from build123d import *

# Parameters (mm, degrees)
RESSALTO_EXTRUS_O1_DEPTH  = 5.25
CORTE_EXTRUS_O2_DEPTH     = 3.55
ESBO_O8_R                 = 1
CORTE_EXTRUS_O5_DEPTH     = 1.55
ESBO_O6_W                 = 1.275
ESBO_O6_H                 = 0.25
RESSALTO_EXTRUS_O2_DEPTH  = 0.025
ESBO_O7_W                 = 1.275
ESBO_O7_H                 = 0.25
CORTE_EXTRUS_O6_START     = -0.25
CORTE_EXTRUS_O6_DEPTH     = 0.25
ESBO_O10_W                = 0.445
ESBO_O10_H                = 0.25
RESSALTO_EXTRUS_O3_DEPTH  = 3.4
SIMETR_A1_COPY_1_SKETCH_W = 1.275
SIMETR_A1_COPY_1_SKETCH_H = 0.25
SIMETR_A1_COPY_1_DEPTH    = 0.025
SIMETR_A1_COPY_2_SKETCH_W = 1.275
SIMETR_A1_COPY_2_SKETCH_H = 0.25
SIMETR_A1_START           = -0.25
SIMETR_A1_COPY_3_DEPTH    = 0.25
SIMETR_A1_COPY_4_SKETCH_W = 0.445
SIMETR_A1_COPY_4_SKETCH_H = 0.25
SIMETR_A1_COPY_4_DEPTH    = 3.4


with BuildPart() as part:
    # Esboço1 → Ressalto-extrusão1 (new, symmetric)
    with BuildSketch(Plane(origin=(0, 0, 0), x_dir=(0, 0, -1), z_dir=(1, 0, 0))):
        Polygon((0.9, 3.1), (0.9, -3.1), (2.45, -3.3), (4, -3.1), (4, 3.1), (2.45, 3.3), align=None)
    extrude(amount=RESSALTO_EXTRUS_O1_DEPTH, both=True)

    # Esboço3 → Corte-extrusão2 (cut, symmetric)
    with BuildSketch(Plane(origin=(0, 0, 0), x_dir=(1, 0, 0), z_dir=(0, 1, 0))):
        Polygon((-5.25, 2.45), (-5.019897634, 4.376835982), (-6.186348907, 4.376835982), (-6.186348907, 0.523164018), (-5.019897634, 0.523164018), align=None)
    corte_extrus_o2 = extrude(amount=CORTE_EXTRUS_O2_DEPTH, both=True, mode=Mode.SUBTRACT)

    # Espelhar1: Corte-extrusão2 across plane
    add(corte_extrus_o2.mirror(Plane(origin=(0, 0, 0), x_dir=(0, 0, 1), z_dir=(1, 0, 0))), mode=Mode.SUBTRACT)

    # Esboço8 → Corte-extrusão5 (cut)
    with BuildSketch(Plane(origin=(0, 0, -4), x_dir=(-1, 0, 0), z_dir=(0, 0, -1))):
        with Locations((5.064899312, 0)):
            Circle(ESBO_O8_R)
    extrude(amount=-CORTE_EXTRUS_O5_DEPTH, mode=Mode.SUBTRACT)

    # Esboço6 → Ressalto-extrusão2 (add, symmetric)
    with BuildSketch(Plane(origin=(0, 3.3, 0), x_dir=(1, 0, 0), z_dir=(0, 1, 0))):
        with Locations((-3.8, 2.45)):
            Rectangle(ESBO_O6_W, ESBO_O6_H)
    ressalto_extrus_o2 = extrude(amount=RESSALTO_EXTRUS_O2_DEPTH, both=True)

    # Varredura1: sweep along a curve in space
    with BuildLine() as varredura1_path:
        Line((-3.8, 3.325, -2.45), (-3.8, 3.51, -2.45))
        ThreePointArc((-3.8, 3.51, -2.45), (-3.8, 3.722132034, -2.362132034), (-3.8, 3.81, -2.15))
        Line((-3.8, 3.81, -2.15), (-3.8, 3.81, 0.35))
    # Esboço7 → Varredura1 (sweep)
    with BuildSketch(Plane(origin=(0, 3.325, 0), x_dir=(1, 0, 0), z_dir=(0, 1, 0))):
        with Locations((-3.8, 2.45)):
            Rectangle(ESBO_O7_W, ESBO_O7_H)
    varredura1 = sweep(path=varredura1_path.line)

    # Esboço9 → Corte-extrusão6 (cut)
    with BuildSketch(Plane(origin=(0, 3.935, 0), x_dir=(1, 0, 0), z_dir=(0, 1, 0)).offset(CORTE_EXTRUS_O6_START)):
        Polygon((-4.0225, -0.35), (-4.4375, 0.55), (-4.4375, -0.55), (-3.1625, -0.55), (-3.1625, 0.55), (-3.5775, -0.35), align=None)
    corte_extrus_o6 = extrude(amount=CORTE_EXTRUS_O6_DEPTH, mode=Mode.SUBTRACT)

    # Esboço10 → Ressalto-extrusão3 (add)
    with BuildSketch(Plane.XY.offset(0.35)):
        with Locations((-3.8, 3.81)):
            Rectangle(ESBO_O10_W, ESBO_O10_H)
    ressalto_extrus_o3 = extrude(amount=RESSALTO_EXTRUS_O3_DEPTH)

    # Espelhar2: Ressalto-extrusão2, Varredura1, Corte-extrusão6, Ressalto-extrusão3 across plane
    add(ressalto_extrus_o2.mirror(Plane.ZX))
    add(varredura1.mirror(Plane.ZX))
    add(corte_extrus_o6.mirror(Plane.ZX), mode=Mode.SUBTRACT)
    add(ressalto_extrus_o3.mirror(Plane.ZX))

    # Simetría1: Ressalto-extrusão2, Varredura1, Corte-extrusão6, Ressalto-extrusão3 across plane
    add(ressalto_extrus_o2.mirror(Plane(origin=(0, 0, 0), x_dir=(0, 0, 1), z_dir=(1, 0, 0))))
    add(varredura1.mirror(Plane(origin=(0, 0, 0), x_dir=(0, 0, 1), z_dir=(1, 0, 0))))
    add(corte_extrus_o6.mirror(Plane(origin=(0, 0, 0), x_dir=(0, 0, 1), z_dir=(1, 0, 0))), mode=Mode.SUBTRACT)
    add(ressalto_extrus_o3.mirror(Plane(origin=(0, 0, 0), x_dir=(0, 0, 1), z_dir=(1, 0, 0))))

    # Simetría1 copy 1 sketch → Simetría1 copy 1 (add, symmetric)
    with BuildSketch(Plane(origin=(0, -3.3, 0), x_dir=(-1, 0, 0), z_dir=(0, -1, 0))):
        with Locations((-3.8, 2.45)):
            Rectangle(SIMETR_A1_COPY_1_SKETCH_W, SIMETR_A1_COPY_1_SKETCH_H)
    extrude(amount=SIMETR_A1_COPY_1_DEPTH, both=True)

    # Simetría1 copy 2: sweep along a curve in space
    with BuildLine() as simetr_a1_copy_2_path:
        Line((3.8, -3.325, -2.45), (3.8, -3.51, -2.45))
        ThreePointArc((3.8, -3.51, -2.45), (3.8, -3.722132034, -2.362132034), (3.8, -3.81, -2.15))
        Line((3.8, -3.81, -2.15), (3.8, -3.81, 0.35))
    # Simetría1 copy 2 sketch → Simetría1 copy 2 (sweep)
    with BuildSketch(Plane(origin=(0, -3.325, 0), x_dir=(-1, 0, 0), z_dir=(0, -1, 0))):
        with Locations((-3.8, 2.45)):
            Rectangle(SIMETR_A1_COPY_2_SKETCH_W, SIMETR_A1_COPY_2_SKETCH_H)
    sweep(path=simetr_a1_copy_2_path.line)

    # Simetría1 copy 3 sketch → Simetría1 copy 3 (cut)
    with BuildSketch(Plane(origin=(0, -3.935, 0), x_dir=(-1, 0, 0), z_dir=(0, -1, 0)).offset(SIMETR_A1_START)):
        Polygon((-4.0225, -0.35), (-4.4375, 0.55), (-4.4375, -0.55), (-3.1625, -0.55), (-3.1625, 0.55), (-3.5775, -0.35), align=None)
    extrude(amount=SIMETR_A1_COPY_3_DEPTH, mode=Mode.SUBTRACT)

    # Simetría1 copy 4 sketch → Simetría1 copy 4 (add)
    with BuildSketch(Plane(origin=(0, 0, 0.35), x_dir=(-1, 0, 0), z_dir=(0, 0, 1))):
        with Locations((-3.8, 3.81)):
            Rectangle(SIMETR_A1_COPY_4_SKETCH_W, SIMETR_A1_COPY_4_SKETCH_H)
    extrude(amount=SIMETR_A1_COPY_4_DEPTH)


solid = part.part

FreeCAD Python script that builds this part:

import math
import FreeCAD as App
import Part
import Sketcher
from FreeCAD import Vector
Q = App.Units.Quantity


def add_polygon(sketch, points):
    """Adds a closed chain of lines whose ends are joined by coincident constraints."""
    first, n = sketch.GeometryCount, len(points)
    for a, b in zip(points, points[1:] + points[:1]):
        sketch.addGeometry(Part.LineSegment(App.Vector(*a, 0), App.Vector(*b, 0)), False)
    for i in range(n):
        sketch.addConstraint(Sketcher.Constraint("Coincident", first + i, 2, first + (i + 1) % n, 1))

doc = App.newDocument("Part")
params = doc.addObject("Spreadsheet::Sheet", "Params")
for row, (alias, value) in enumerate([
    ("sketch1_width", "6.2 mm"),
    ("pad1_length", "10.5 mm"),
    ("pocket1_length", "7.1 mm"),
    ("sketch3_diameter", "2 mm"),
    ("pocket2_length", "1.55 mm"),
    ("sketch4_height", "0.25 mm"),
    ("pad2_length", "0.05 mm"),
    ("sketch5_height", "0.25 mm"),
    ("sketch6_radius", "0.3 mm"),
    ("sketch6_height", "2.5 mm"),
    ("sketch7_height", "1.1 mm"),
    ("pocket3_length", "0.25 mm"),
    ("sketch8_height", "0.25 mm"),
    ("pad3_length", "3.4 mm"),
    ("sketch9_height", "0.25 mm"),
    ("pad4_length", "0.05 mm"),
    ("sketch10_height", "0.25 mm"),
    ("sketch11_radius", "0.3 mm"),
    ("sketch11_height", "2.5 mm"),
    ("sketch12_height", "1.1 mm"),
    ("pocket4_length", "0.25 mm"),
    ("sketch13_height", "0.25 mm"),
    ("pad5_length", "3.4 mm"),
], start=1):
    params.set(f"A{row}", alias)
    params.set(f"B{row}", "=" + value)
    params.setAlias(f"B{row}", alias)

body = doc.addObject("PartDesign::Body", "Body")

# Sketch on YZ plane
sketch1 = doc.addObject("Sketcher::SketchObject", "Sketch")
body.addObject(sketch1)
sketch1.AttachmentSupport = (doc.YZ_Plane, [""])
sketch1.MapMode = "FlatFace"
add_polygon(sketch1, [(3.1, -0.9), (-3.1, -0.9), (-3.3, -2.5), (-3.1, -4), (3.1, -4), (3.3, -2.5)])  # lines 0-5
sketch1.addConstraint([
    Sketcher.Constraint("Horizontal", 0),
    Sketcher.Constraint("Horizontal", 3),
    Sketcher.Constraint("Symmetric", 1, 2, 4, 2, -2),
    Sketcher.Constraint("Parallel", 1, 4),
    Sketcher.Constraint("Parallel", 2, 5),
    Sketcher.Constraint("Vertical", 0, 2, 2, 2),
    Sketcher.Constraint("Vertical", 3, 2, 5, 2),
    Sketcher.Constraint("DistanceX", 0, 2, 0, 1, Q("6.2 mm")),
    Sketcher.Constraint("DistanceY", 2, 2, -1, 1, Q("4 mm")),
    Sketcher.Constraint("DistanceY", 0, 2, -1, 1, Q("0.9 mm")),
    Sketcher.Constraint("DistanceX", 1, 2, -1, 1, Q("3.3 mm")),
])
sketch1.setExpression("Constraints[13]", "Params.sketch1_width")
pad1 = doc.addObject("PartDesign::Pad", "Pad")
body.addObject(pad1)
pad1.Profile = sketch1
pad1.setExpression("Length", "Params.pad1_length")
pad1.Midplane = True

# Sketch on XZ plane
sketch2 = doc.addObject("Sketcher::SketchObject", "Sketch001")
body.addObject(sketch2)
sketch2.AttachmentSupport = (doc.XZ_Plane, [""])
sketch2.MapMode = "FlatFace"
add_polygon(sketch2, [(-5.2, -2.5), (-5, -4.4), (-6.2, -4.4), (-6.2, -0.5), (-5, -0.5)])  # lines 0-4
sketch2.addConstraint([
    Sketcher.Constraint("Horizontal", 1),
    Sketcher.Constraint("Vertical", 2),
    Sketcher.Constraint("Horizontal", 3),
    Sketcher.Constraint("Vertical", 0, 2, 3, 2),
    Sketcher.Constraint("Equal", 0, 4),
    Sketcher.Constraint("Angle", 0, Q("-83.19 deg")),
    Sketcher.Constraint("DistanceX", 4, 2, -1, 1, Q("5.25 mm")),
    Sketcher.Constraint("DistanceY", 4, 2, -1, 1, Q("2.45 mm")),
    Sketcher.Constraint("DistanceX", 1, 2, 1, 1, Q("1.166451 mm")),
    Sketcher.Constraint("DistanceY", 2, 1, 2, 2, Q("3.853672 mm")),
])
pocket1 = doc.addObject("PartDesign::Pocket", "Pocket")
body.addObject(pocket1)
pocket1.Profile = sketch2
pocket1.setExpression("Length", "Params.pocket1_length")
pocket1.Midplane = True
doc.recompute()

mirrored = doc.addObject("PartDesign::Mirrored", "Mirrored")
body.addObject(mirrored)
mirrored.Originals = [pocket1]
mirrored.MirrorPlane = (doc.YZ_Plane, [""])
body.Tip = mirrored

# Sketch on XY plane
sketch3 = doc.addObject("Sketcher::SketchObject", "Sketch002")
body.addObject(sketch3)
sketch3.AttachmentSupport = (doc.XY_Plane, [""])
sketch3.MapMode = "FlatFace"
sketch3.AttachmentOffset = App.Placement(Vector(0, 0, -4), App.Rotation())
sketch3.addGeometry(Part.Circle(Vector(-5.1, 0, 0), Vector(0, 0, 1), 1), False)
sketch3.addConstraint([
    Sketcher.Constraint("PointOnObject", 0, 3, -1),
    Sketcher.Constraint("Diameter", 0, Q("2 mm")),
    Sketcher.Constraint("DistanceX", 0, 3, -1, 1, Q("5.064899 mm")),
])
sketch3.setExpression("Constraints[1]", "Params.sketch3_diameter")
pocket2 = doc.addObject("PartDesign::Pocket", "Pocket001")
body.addObject(pocket2)
pocket2.Profile = sketch3
pocket2.setExpression("Length", "Params.pocket2_length")
pocket2.Reversed = True

# Sketch on XZ plane
sketch4 = doc.addObject("Sketcher::SketchObject", "Sketch003")
body.addObject(sketch4)
sketch4.AttachmentSupport = (doc.XZ_Plane, [""])
sketch4.MapMode = "FlatFace"
sketch4.AttachmentOffset = App.Placement(Vector(0, 0, -3.3), App.Rotation())
add_polygon(sketch4, [(-4.44, -2.58), (-4.44, -2.33), (-3.16, -2.33), (-3.16, -2.58)])  # lines 0-3
sketch4.addConstraint([
    Sketcher.Constraint("Vertical", 0),
    Sketcher.Constraint("Horizontal", 1),
    Sketcher.Constraint("Vertical", 2),
    Sketcher.Constraint("Horizontal", 3),
    Sketcher.Constraint("DistanceY", 0, 1, 0, 2, Q("0.25 mm")),
    Sketcher.Constraint("DistanceX", 1, 1, 1, 2, Q("1.275 mm")),
    Sketcher.Constraint("DistanceY", 0, 2, -1, 1, Q("2.325 mm")),
    Sketcher.Constraint("DistanceX", 0, 2, -1, 1, Q("4.4375 mm")),
])
sketch4.setExpression("Constraints[8]", "Params.sketch4_height")
pad2 = doc.addObject("PartDesign::Pad", "Pad001")
body.addObject(pad2)
pad2.Profile = sketch4
pad2.setExpression("Length", "Params.pad2_length")
pad2.Midplane = True

# Sketch on XZ plane
sketch5 = doc.addObject("Sketcher::SketchObject", "Sketch004")
body.addObject(sketch5)
sketch5.AttachmentSupport = (doc.XZ_Plane, [""])
sketch5.MapMode = "FlatFace"
sketch5.AttachmentOffset = App.Placement(Vector(0, 0, -3.325), App.Rotation())
add_polygon(sketch5, [(-4.44, -2.58), (-4.44, -2.33), (-3.16, -2.33), (-3.16, -2.58)])  # lines 0-3
sketch5.addConstraint([
    Sketcher.Constraint("Vertical", 0),
    Sketcher.Constraint("Horizontal", 1),
    Sketcher.Constraint("Vertical", 2),
    Sketcher.Constraint("Horizontal", 3),
    Sketcher.Constraint("DistanceY", 0, 1, 0, 2, Q("0.25 mm")),
    Sketcher.Constraint("DistanceX", 1, 1, 1, 2, Q("1.275 mm")),
    Sketcher.Constraint("DistanceY", 0, 2, -1, 1, Q("2.325 mm")),
    Sketcher.Constraint("DistanceX", 0, 2, -1, 1, Q("4.4375 mm")),
])
sketch5.setExpression("Constraints[8]", "Params.sketch5_height")

# Sketch on YZ plane
sketch6 = doc.addObject("Sketcher::SketchObject", "Sketch005")
body.addObject(sketch6)
sketch6.AttachmentSupport = (doc.YZ_Plane, [""])
sketch6.MapMode = "FlatFace"
sketch6.AttachmentOffset = App.Placement(Vector(0, 0, -3.8), App.Rotation())
sketch6.addGeometry([
    Part.LineSegment(Vector(3.33, -2.45, 0), Vector(3.51, -2.45, 0)),
    Part.ArcOfCircle(Part.Circle(Vector(3.51, -2.15, 0), Vector(0, 0, 1), 0.3), math.radians(-90), math.radians(0)),
    Part.LineSegment(Vector(3.81, -2.15, 0), Vector(3.81, 0.35, 0)),
], False)
sketch6.addConstraint([
    Sketcher.Constraint("Tangent", 0, 2, 1, 1),
    Sketcher.Constraint("Tangent", 1, 2, 2, 1),
    Sketcher.Constraint("Horizontal", 0),
    Sketcher.Constraint("Vertical", 2),
    Sketcher.Constraint("Radius", 1, Q("0.3 mm")),
    Sketcher.Constraint("DistanceY", 2, 1, 2, 2, Q("2.5 mm")),
    Sketcher.Constraint("DistanceX", 0, 1, 0, 2, Q("0.185 mm")),
    Sketcher.Constraint("DistanceX", -1, 1, 1, 3, Q("3.51 mm")),
    Sketcher.Constraint("DistanceY", 1, 3, -1, 1, Q("2.15 mm")),
])
sketch6.setExpression("Constraints[4]", "Params.sketch6_radius")
sketch6.setExpression("Constraints[5]", "Params.sketch6_height")
doc.recompute()

additivepipe = doc.addObject("PartDesign::AdditivePipe", "AdditivePipe")
body.addObject(additivepipe)
additivepipe.Profile = sketch5
additivepipe.Spine = (sketch6, ["Edge1", "Edge2", "Edge3"])

# Sketch on XZ plane
sketch7 = doc.addObject("Sketcher::SketchObject", "Sketch006")
body.addObject(sketch7)
sketch7.AttachmentSupport = (doc.XZ_Plane, [""])
sketch7.MapMode = "FlatFace"
sketch7.AttachmentOffset = App.Placement(Vector(0, 0, -3.685), App.Rotation())
add_polygon(sketch7, [(-4.02, 0.35), (-4.44, -0.55), (-4.44, 0.55), (-3.16, 0.55), (-3.16, -0.55), (-3.58, 0.35)])  # lines 0-5
sketch7.addConstraint([
    Sketcher.Constraint("Vertical", 1),
    Sketcher.Constraint("Horizontal", 2),
    Sketcher.Constraint("Vertical", 3),
    Sketcher.Constraint("Horizontal", 5),
    Sketcher.Constraint("Horizontal", 0, 2, 3, 2),
    Sketcher.Constraint("Equal", 0, 4),
    Sketcher.Constraint("DistanceY", 1, 1, 1, 2, Q("1.1 mm")),
    Sketcher.Constraint("DistanceY", 4, 2, 2, 2, Q("0.2 mm")),
    Sketcher.Constraint("DistanceX", 2, 1, 2, 2, Q("1.275 mm")),
    Sketcher.Constraint("DistanceX", 5, 2, 5, 1, Q("0.445 mm")),
    Sketcher.Constraint("DistanceY", 0, 2, -1, 1, Q("0.55 mm")),
    Sketcher.Constraint("DistanceX", 0, 2, -1, 1, Q("4.4375 mm")),
])
sketch7.setExpression("Constraints[12]", "Params.sketch7_height")
pocket3 = doc.addObject("PartDesign::Pocket", "Pocket002")
body.addObject(pocket3)
pocket3.Profile = sketch7
pocket3.setExpression("Length", "Params.pocket3_length")

# Sketch on XY plane
sketch8 = doc.addObject("Sketcher::SketchObject", "Sketch007")
body.addObject(sketch8)
sketch8.AttachmentSupport = (doc.XY_Plane, [""])
sketch8.MapMode = "FlatFace"
sketch8.AttachmentOffset = App.Placement(Vector(0, 0, 0.35), App.Rotation())
add_polygon(sketch8, [(-4.02, 3.94), (-4.02, 3.69), (-3.58, 3.69), (-3.58, 3.94)])  # lines 0-3
sketch8.addConstraint([
    Sketcher.Constraint("Vertical", 0),
    Sketcher.Constraint("Horizontal", 1),
    Sketcher.Constraint("Vertical", 2),
    Sketcher.Constraint("Horizontal", 3),
    Sketcher.Constraint("DistanceY", 0, 2, 0, 1, Q("0.25 mm")),
    Sketcher.Constraint("DistanceX", 1, 1, 1, 2, Q("0.445 mm")),
    Sketcher.Constraint("DistanceY", -1, 1, 0, 2, Q("3.685 mm")),
    Sketcher.Constraint("DistanceX", 0, 2, -1, 1, Q("4.0225 mm")),
])
sketch8.setExpression("Constraints[8]", "Params.sketch8_height")
pad3 = doc.addObject("PartDesign::Pad", "Pad002")
body.addObject(pad3)
pad3.Profile = sketch8
pad3.setExpression("Length", "Params.pad3_length")
doc.recompute()

mirrored2 = doc.addObject("PartDesign::Mirrored", "Mirrored001")
body.addObject(mirrored2)
mirrored2.Originals = [pad2, additivepipe, pocket3, pad3]
mirrored2.MirrorPlane = (doc.XZ_Plane, [""])
body.Tip = mirrored2
doc.recompute()

mirrored3 = doc.addObject("PartDesign::Mirrored", "Mirrored002")
body.addObject(mirrored3)
mirrored3.Originals = [pad2, additivepipe, pocket3, pad3]
mirrored3.MirrorPlane = (doc.YZ_Plane, [""])
body.Tip = mirrored3

# Sketch on XZ plane
sketch9 = doc.addObject("Sketcher::SketchObject", "Sketch008")
body.addObject(sketch9)
sketch9.AttachmentSupport = (doc.XZ_Plane, [""])
sketch9.MapMode = "FlatFace"
sketch9.AttachmentOffset = App.Placement(Vector(0, 0, 3.3), App.Rotation())
add_polygon(sketch9, [(4.44, -2.58), (4.44, -2.33), (3.16, -2.33), (3.16, -2.58)])  # lines 0-3
sketch9.addConstraint([
    Sketcher.Constraint("Vertical", 0),
    Sketcher.Constraint("Horizontal", 1),
    Sketcher.Constraint("Vertical", 2),
    Sketcher.Constraint("Horizontal", 3),
    Sketcher.Constraint("DistanceY", 0, 1, 0, 2, Q("0.25 mm")),
    Sketcher.Constraint("DistanceX", 1, 2, 1, 1, Q("1.275 mm")),
    Sketcher.Constraint("DistanceY", 0, 2, -1, 1, Q("2.325 mm")),
    Sketcher.Constraint("DistanceX", -1, 1, 0, 2, Q("4.4375 mm")),
])
sketch9.setExpression("Constraints[8]", "Params.sketch9_height")
pad4 = doc.addObject("PartDesign::Pad", "Pad003")
body.addObject(pad4)
pad4.Profile = sketch9
pad4.setExpression("Length", "Params.pad4_length")
pad4.Midplane = True

# Sketch on XZ plane
sketch10 = doc.addObject("Sketcher::SketchObject", "Sketch009")
body.addObject(sketch10)
sketch10.AttachmentSupport = (doc.XZ_Plane, [""])
sketch10.MapMode = "FlatFace"
sketch10.AttachmentOffset = App.Placement(Vector(0, 0, 3.325), App.Rotation())
add_polygon(sketch10, [(4.44, -2.58), (4.44, -2.33), (3.16, -2.33), (3.16, -2.58)])  # lines 0-3
sketch10.addConstraint([
    Sketcher.Constraint("Vertical", 0),
    Sketcher.Constraint("Horizontal", 1),
    Sketcher.Constraint("Vertical", 2),
    Sketcher.Constraint("Horizontal", 3),
    Sketcher.Constraint("DistanceY", 0, 1, 0, 2, Q("0.25 mm")),
    Sketcher.Constraint("DistanceX", 1, 2, 1, 1, Q("1.275 mm")),
    Sketcher.Constraint("DistanceY", 0, 2, -1, 1, Q("2.325 mm")),
    Sketcher.Constraint("DistanceX", -1, 1, 0, 2, Q("4.4375 mm")),
])
sketch10.setExpression("Constraints[8]", "Params.sketch10_height")

# Sketch on YZ plane
sketch11 = doc.addObject("Sketcher::SketchObject", "Sketch010")
body.addObject(sketch11)
sketch11.AttachmentSupport = (doc.YZ_Plane, [""])
sketch11.MapMode = "FlatFace"
sketch11.AttachmentOffset = App.Placement(Vector(0, 0, 3.8), App.Rotation())
sketch11.addGeometry([
    Part.LineSegment(Vector(-3.33, -2.45, 0), Vector(-3.51, -2.45, 0)),
    Part.ArcOfCircle(Part.Circle(Vector(-3.51, -2.15, 0), Vector(0, 0, 1), 0.3), math.radians(-180), math.radians(-90)),
    Part.LineSegment(Vector(-3.81, -2.15, 0), Vector(-3.81, 0.35, 0)),
], False)
sketch11.addConstraint([
    Sketcher.Constraint("Tangent", 0, 2, 1, 2),
    Sketcher.Constraint("Tangent", 1, 1, 2, 1),
    Sketcher.Constraint("Horizontal", 0),
    Sketcher.Constraint("Vertical", 2),
    Sketcher.Constraint("Radius", 1, Q("0.3 mm")),
    Sketcher.Constraint("DistanceY", 2, 1, 2, 2, Q("2.5 mm")),
    Sketcher.Constraint("DistanceX", 0, 2, 0, 1, Q("0.185 mm")),
    Sketcher.Constraint("DistanceX", 1, 3, -1, 1, Q("3.51 mm")),
    Sketcher.Constraint("DistanceY", 1, 3, -1, 1, Q("2.15 mm")),
])
sketch11.setExpression("Constraints[4]", "Params.sketch11_radius")
sketch11.setExpression("Constraints[5]", "Params.sketch11_height")
doc.recompute()

additivepipe2 = doc.addObject("PartDesign::AdditivePipe", "AdditivePipe001")
body.addObject(additivepipe2)
additivepipe2.Profile = sketch10
additivepipe2.Spine = (sketch11, ["Edge1", "Edge2", "Edge3"])

# Sketch on XZ plane
sketch12 = doc.addObject("Sketcher::SketchObject", "Sketch011")
body.addObject(sketch12)
sketch12.AttachmentSupport = (doc.XZ_Plane, [""])
sketch12.MapMode = "FlatFace"
sketch12.AttachmentOffset = App.Placement(Vector(0, 0, 3.685), App.Rotation())
add_polygon(sketch12, [(4.02, 0.35), (4.44, -0.55), (4.44, 0.55), (3.16, 0.55), (3.16, -0.55), (3.58, 0.35)])  # lines 0-5
sketch12.addConstraint([
    Sketcher.Constraint("Vertical", 1),
    Sketcher.Constraint("Horizontal", 2),
    Sketcher.Constraint("Vertical", 3),
    Sketcher.Constraint("Horizontal", 5),
    Sketcher.Constraint("Horizontal", 0, 2, 3, 2),
    Sketcher.Constraint("Equal", 0, 4),
    Sketcher.Constraint("DistanceY", 1, 1, 1, 2, Q("1.1 mm")),
    Sketcher.Constraint("DistanceY", 4, 2, 2, 2, Q("0.2 mm")),
    Sketcher.Constraint("DistanceX", 2, 2, 2, 1, Q("1.275 mm")),
    Sketcher.Constraint("DistanceX", 5, 1, 5, 2, Q("0.445 mm")),
    Sketcher.Constraint("DistanceY", 0, 2, -1, 1, Q("0.55 mm")),
    Sketcher.Constraint("DistanceX", -1, 1, 0, 2, Q("4.4375 mm")),
])
sketch12.setExpression("Constraints[12]", "Params.sketch12_height")
pocket4 = doc.addObject("PartDesign::Pocket", "Pocket003")
body.addObject(pocket4)
pocket4.Profile = sketch12
pocket4.setExpression("Length", "Params.pocket4_length")
pocket4.Reversed = True

# Sketch on XY plane
sketch13 = doc.addObject("Sketcher::SketchObject", "Sketch012")
body.addObject(sketch13)
sketch13.AttachmentSupport = (doc.XY_Plane, [""])
sketch13.MapMode = "FlatFace"
sketch13.AttachmentOffset = App.Placement(Vector(0, 0, 0.35), App.Rotation())
add_polygon(sketch13, [(4.02, -3.94), (4.02, -3.69), (3.58, -3.69), (3.58, -3.94)])  # lines 0-3
sketch13.addConstraint([
    Sketcher.Constraint("Vertical", 0),
    Sketcher.Constraint("Horizontal", 1),
    Sketcher.Constraint("Vertical", 2),
    Sketcher.Constraint("Horizontal", 3),
    Sketcher.Constraint("DistanceY", 0, 1, 0, 2, Q("0.25 mm")),
    Sketcher.Constraint("DistanceX", 1, 2, 1, 1, Q("0.445 mm")),
    Sketcher.Constraint("DistanceY", 0, 2, -1, 1, Q("3.685 mm")),
    Sketcher.Constraint("DistanceX", -1, 1, 0, 2, Q("4.0225 mm")),
])
sketch13.setExpression("Constraints[8]", "Params.sketch13_height")
pad5 = doc.addObject("PartDesign::Pad", "Pad004")
body.addObject(pad5)
pad5.Profile = sketch13
pad5.setExpression("Length", "Params.pad5_length")

doc.recompute()
